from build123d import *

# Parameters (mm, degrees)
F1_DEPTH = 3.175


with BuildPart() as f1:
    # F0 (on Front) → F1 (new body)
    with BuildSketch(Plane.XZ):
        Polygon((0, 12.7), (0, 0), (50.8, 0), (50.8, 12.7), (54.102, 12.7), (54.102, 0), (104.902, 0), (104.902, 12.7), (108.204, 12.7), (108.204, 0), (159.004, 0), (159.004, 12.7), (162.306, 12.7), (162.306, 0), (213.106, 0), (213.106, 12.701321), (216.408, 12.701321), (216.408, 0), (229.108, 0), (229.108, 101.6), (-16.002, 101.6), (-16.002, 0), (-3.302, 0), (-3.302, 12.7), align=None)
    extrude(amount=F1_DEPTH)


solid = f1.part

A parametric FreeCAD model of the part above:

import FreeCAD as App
import Part
import Sketcher
Q = App.Units.Quantity


def add_polygon(sketch, points):
    """Adds a closed chain of lines whose ends are joined by coincident constraints."""
    first, n = sketch.GeometryCount, len(points)
    for a, b in zip(points, points[1:] + points[:1]):
        sketch.addGeometry(Part.LineSegment(App.Vector(*a, 0), App.Vector(*b, 0)), False)
    for i in range(n):
        sketch.addConstraint(Sketcher.Constraint("Coincident", first + i, 2, first + (i + 1) % n, 1))

doc = App.newDocument("Part")
body = doc.addObject("PartDesign::Body", "Body")

# Sketch on XZ plane
sketch1 = body.newObject("Sketcher::SketchObject", "Sketch")
sketch1.AttachmentSupport = (doc.getObject("XZ_Plane"), [""])
sketch1.MapMode = "FlatFace"
add_polygon(sketch1, [(0, 12.7), (0, 0), (50.8, 0), (50.8, 12.7), (54.102, 12.7), (54.102, 0), (104.902, 0), (104.902, 12.7), (108.204, 12.7), (108.204, 0), (159.004, 0), (159.004, 12.7), (162.306, 12.7), (162.306, 0), (213.106, 0), (213.106, 12.701321), (216.408, 12.701321), (216.408, 0), (229.108, 0), (229.108, 101.6), (-16.002, 101.6), (-16.002, 0), (-3.302, 0), (-3.302, 12.7)])  # lines 0-23
sketch1.addConstraint(Sketcher.Constraint("Vertical", 0))
sketch1.addConstraint(Sketcher.Constraint("Horizontal", 1))
sketch1.addConstraint(Sketcher.Constraint("Vertical", 2))
sketch1.addConstraint(Sketcher.Constraint("Horizontal", 3))
sketch1.addConstraint(Sketcher.Constraint("Vertical", 4))
sketch1.addConstraint(Sketcher.Constraint("Horizontal", 5))
sketch1.addConstraint(Sketcher.Constraint("Vertical", 6))
sketch1.addConstraint(Sketcher.Constraint("Horizontal", 7))
sketch1.addConstraint(Sketcher.Constraint("Vertical", 8))
sketch1.addConstraint(Sketcher.Constraint("Horizontal", 9))
sketch1.addConstraint(Sketcher.Constraint("Vertical", 10))
sketch1.addConstraint(Sketcher.Constraint("Horizontal", 11))
sketch1.addConstraint(Sketcher.Constraint("Vertical", 12))
sketch1.addConstraint(Sketcher.Constraint("Horizontal", 13))
sketch1.addConstraint(Sketcher.Constraint("Vertical", 14))
sketch1.addConstraint(Sketcher.Constraint("Horizontal", 15))
sketch1.addConstraint(Sketcher.Constraint("Vertical", 16))
sketch1.addConstraint(Sketcher.Constraint("Horizontal", 17))
sketch1.addConstraint(Sketcher.Constraint("Vertical", 18))
sketch1.addConstraint(Sketcher.Constraint("Horizontal", 19))
sketch1.addConstraint(Sketcher.Constraint("Vertical", 20))
sketch1.addConstraint(Sketcher.Constraint("Horizontal", 21))
sketch1.addConstraint(Sketcher.Constraint("Vertical", 22))
sketch1.addConstraint(Sketcher.Constraint("Horizontal", 23))
sketch1.addConstraint(Sketcher.Constraint("Coincident", 0, 2, -1, 1))
sketch1.addConstraint(Sketcher.Constraint("PointOnObject", 4, 2, -1))
sketch1.addConstraint(Sketcher.Constraint("PointOnObject", 8, 2, -1))
sketch1.addConstraint(Sketcher.Constraint("PointOnObject", 12, 2, -1))
sketch1.addConstraint(Sketcher.Constraint("PointOnObject", 16, 2, -1))
sketch1.addConstraint(Sketcher.Constraint("PointOnObject", 20, 2, -1))
sketch1.addConstraint(Sketcher.Constraint("Horizontal", 3, 2, 6, 2))
sketch1.addConstraint(Sketcher.Constraint("Horizontal", 7, 2, 10, 2))
sketch1.addConstraint(Sketcher.Constraint("Horizontal", 11, 2, 22, 2))
sketch1.addConstraint(Sketcher.Constraint("Equal", 1, 5))
sketch1.addConstraint(Sketcher.Constraint("Equal", 3, 7))
sketch1.addConstraint(Sketcher.Constraint("Equal", 5, 9))
sketch1.addConstraint(Sketcher.Constraint("Equal", 7, 11))
sketch1.addConstraint(Sketcher.Constraint("Equal", 9, 13))
sketch1.addConstraint(Sketcher.Constraint("Equal", 11, 15))
sketch1.addConstraint(Sketcher.Constraint("Equal", 17, 21))
sketch1.addConstraint(Sketcher.Constraint("Equal", 15, 23))
sketch1.addConstraint(Sketcher.Constraint("Equal", 21, 0))
sketch1.addConstraint(Sketcher.Constraint("DistanceX", 1, 1, 1, 2, Q("2 in")))
sketch1.addConstraint(Sketcher.Constraint("DistanceY", 18, 1, 18, 2, Q("4 in")))
sketch1.addConstraint(Sketcher.Constraint("DistanceX", 17, 1, 17, 2, Q("0.5 in")))
sketch1.addConstraint(Sketcher.Constraint("DistanceX", 3, 1, 3, 2, Q("0.13 in")))
sketch1.addConstraint(Sketcher.Constraint("DistanceY", 14, 1, 14, 2, 12.701321))
pad1 = body.newObject("PartDesign::Pad", "Pad")
pad1.Profile = sketch1
pad1.Length = Q("0.125 in")

doc.recompute()
